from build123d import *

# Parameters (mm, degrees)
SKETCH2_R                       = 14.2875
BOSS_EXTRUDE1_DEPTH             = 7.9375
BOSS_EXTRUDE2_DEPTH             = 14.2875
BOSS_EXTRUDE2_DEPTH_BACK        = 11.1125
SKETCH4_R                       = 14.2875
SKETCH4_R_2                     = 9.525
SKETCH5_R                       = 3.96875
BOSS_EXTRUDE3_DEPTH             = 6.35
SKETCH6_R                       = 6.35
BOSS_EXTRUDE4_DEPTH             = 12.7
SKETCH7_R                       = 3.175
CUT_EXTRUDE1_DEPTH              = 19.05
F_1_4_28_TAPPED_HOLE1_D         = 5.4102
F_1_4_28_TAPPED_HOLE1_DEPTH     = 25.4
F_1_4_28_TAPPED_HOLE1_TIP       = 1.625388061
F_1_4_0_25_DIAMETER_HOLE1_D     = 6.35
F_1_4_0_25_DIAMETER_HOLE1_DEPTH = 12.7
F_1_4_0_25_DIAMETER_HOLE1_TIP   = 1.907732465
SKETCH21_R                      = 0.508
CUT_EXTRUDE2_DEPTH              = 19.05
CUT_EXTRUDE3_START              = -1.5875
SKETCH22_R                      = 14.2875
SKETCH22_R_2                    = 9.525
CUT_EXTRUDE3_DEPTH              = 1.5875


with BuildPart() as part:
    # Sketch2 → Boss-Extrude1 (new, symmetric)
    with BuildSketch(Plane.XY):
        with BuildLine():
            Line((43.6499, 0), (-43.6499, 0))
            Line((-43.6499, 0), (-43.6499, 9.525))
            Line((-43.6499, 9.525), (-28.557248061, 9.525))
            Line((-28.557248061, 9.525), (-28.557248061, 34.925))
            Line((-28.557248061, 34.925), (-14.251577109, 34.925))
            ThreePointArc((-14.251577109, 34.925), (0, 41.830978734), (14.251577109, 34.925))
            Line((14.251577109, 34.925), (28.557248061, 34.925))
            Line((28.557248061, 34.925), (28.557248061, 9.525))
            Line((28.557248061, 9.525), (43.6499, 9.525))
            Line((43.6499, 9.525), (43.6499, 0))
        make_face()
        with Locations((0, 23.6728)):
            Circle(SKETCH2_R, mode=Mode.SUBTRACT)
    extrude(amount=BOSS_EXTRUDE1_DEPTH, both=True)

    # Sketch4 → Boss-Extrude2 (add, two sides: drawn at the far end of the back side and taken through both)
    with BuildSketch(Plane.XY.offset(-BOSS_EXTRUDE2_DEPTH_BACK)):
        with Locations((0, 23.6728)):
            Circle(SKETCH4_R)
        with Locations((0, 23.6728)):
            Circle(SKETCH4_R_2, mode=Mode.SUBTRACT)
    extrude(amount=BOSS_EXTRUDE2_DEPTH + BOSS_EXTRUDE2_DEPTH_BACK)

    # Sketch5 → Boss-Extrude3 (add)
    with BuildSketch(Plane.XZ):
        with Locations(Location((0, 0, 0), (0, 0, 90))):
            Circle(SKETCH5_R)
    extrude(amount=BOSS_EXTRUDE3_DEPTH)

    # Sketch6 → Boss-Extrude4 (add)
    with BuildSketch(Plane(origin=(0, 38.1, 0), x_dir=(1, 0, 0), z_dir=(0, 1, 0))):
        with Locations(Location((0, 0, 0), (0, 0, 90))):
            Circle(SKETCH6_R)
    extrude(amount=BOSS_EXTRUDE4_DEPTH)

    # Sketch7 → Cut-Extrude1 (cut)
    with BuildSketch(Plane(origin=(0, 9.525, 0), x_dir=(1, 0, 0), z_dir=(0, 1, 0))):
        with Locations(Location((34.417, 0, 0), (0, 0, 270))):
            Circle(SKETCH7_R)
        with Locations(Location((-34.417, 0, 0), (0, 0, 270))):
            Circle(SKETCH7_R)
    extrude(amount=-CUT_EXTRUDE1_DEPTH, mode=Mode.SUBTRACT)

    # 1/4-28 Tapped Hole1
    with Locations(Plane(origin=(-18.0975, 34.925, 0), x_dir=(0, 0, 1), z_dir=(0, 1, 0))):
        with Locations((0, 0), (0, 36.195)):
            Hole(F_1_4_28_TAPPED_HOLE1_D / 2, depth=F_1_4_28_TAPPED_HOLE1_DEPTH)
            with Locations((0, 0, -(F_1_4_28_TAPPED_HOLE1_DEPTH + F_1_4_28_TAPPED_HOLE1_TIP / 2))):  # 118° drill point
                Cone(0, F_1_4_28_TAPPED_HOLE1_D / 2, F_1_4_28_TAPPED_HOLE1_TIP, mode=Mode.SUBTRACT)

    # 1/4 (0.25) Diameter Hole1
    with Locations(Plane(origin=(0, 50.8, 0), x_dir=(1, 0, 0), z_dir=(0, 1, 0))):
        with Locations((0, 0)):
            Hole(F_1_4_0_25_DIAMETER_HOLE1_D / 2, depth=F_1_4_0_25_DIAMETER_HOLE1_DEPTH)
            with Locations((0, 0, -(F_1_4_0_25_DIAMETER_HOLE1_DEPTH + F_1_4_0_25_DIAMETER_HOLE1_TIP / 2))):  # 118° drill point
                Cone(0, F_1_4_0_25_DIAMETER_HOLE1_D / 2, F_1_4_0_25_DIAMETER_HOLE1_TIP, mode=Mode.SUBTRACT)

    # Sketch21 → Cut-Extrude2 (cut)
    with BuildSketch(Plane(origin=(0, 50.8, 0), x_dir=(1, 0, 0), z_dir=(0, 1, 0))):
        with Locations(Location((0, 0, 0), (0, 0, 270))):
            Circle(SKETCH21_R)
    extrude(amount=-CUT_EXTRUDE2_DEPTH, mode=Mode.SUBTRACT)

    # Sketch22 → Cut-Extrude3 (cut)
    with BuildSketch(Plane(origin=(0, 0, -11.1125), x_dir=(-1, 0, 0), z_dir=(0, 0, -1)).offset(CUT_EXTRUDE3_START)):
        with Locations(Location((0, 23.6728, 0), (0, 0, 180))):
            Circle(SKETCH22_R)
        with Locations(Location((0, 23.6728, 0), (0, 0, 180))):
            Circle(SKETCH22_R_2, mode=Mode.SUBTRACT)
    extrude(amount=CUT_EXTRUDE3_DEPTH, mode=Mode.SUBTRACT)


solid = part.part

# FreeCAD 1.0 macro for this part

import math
import FreeCAD as App
import Part
import Sketcher
Q = App.Units.Quantity

doc = App.newDocument("Part")
body = doc.addObject("PartDesign::Body", "Body")

sketch1 = body.newObject("Sketcher::SketchObject", "Sketch")
sketch1.AttachmentSupport = (doc.getObject("XY_Plane"), [""])
sketch1.MapMode = "FlatFace"
sketch1.addGeometry([
    Part.LineSegment(App.Vector(-44, 0, 0), App.Vector(44, 0, 0)),
    Part.LineSegment(App.Vector(44, 0, 0), App.Vector(44, 10, 0)),
    Part.LineSegment(App.Vector(44, 10, 0), App.Vector(29, 10, 0)),
    Part.LineSegment(App.Vector(29, 10, 0), App.Vector(29, 35, 0)),
    Part.LineSegment(App.Vector(29, 35, 0), App.Vector(14, 35, 0)),
    Part.ArcOfCircle(Part.Circle(App.Vector(0, 24, 0), App.Vector(0, 0, 1), 18), math.radians(38), math.radians(142)),
    Part.LineSegment(App.Vector(-14, 35, 0), App.Vector(-29, 35, 0)),
    Part.LineSegment(App.Vector(-29, 35, 0), App.Vector(-29, 10, 0)),
    Part.LineSegment(App.Vector(-29, 10, 0), App.Vector(-44, 10, 0)),
    Part.LineSegment(App.Vector(-44, 10, 0), App.Vector(-44, 0, 0)),
    Part.Circle(App.Vector(0, 24, 0), App.Vector(0, 0, 1), 14),
], False)
sketch1.addConstraint([
    Sketcher.Constraint("Coincident", 0, 2, 1, 1),
    Sketcher.Constraint("Coincident", 1, 2, 2, 1),
    Sketcher.Constraint("Coincident", 2, 2, 3, 1),
    Sketcher.Constraint("Coincident", 3, 2, 4, 1),
    Sketcher.Constraint("Coincident", 4, 2, 5, 1),
    Sketcher.Constraint("Coincident", 5, 2, 6, 1),
    Sketcher.Constraint("Coincident", 6, 2, 7, 1),
    Sketcher.Constraint("Coincident", 7, 2, 8, 1),
    Sketcher.Constraint("Coincident", 8, 2, 9, 1),
    Sketcher.Constraint("Coincident", 9, 2, 0, 1),
    Sketcher.Constraint("Horizontal", 0),
    Sketcher.Constraint("Vertical", 1),
    Sketcher.Constraint("Horizontal", 2),
    Sketcher.Constraint("Vertical", 3),
    Sketcher.Constraint("Horizontal", 4),
    Sketcher.Constraint("Horizontal", 6),
    Sketcher.Constraint("Vertical", 7),
    Sketcher.Constraint("Horizontal", 8),
    Sketcher.Constraint("Vertical", 9),
    Sketcher.Constraint("Coincident", 10, 3, 5, 3),
    Sketcher.Constraint("Symmetric", 0, 2, 9, 2, -1, 1),
    Sketcher.Constraint("Symmetric", 4, 2, 5, 2, -2),
    Sketcher.Constraint("Symmetric", 2, 2, 7, 2, -2),
    Sketcher.Constraint("DistanceY", 3, 1, 3, 2, Q("1 in")),
    Sketcher.Constraint("Diameter", 10, Q("1.125 in")),
    Sketcher.Constraint("DistanceX", 0, 1, 0, 2, Q("3.437 in")),
    Sketcher.Constraint("DistanceY", 1, 1, 1, 2, Q("0.375 in")),
    Sketcher.Constraint("DistanceY", -1, 1, 5, 3, Q("0.932 in")),
    Sketcher.Constraint("Radius", 5, 18.158179),
    Sketcher.Constraint("DistanceX", 2, 2, 2, 1, 15.092652),
])
pad1 = body.newObject("PartDesign::Pad", "Pad")
pad1.Profile = sketch1
pad1.Length = Q("0.625 in")
pad1.Midplane = True

sketch2 = body.newObject("Sketcher::SketchObject", "Sketch001")
sketch2.AttachmentSupport = (doc.getObject("XY_Plane"), [""])
sketch2.MapMode = "FlatFace"
sketch2.addGeometry([
    Part.Circle(App.Vector(0, 24, 0), App.Vector(0, 0, 1), 14),
    Part.Circle(App.Vector(0, 24, 0), App.Vector(0, 0, 1), 10),
], False)
sketch2.addConstraint([
    Sketcher.Constraint("Coincident", 1, 3, 0, 3),
    Sketcher.Constraint("PointOnObject", 0, 3, -2),
    Sketcher.Constraint("Diameter", 1, Q("0.75 in")),
    Sketcher.Constraint("Diameter", 0, Q("1.125 in")),
    Sketcher.Constraint("DistanceY", -1, 1, 0, 3, Q("0.932 in")),
])
pad2 = body.newObject("PartDesign::Pad", "Pad001")
pad2.Profile = sketch2
pad2.Type = "TwoLengths"
pad2.Length = Q("0.5625 in")
pad2.Length2 = Q("0.4375 in")

sketch3 = body.newObject("Sketcher::SketchObject", "Sketch002")
sketch3.AttachmentSupport = (doc.getObject("XZ_Plane"), [""])
sketch3.MapMode = "FlatFace"
sketch3.addGeometry(Part.Circle(App.Vector(0, 0, 0), App.Vector(0, 0, 1), 4), False)
sketch3.addConstraint([
    Sketcher.Constraint("Coincident", 0, 3, -1, 1),
    Sketcher.Constraint("Diameter", 0, Q("0.3125 in")),
])
pad3 = body.newObject("PartDesign::Pad", "Pad002")
pad3.Profile = sketch3
pad3.Length = Q("0.25 in")

sketch4 = body.newObject("Sketcher::SketchObject", "Sketch003")
sketch4.AttachmentSupport = (doc.getObject("XZ_Plane"), [""])
sketch4.MapMode = "FlatFace"
sketch4.AttachmentOffset = App.Placement(App.Vector(0, 0, -1.5 * 25.4), App.Rotation())
sketch4.addGeometry(Part.Circle(App.Vector(0, 0, 0), App.Vector(0, 0, 1), 6), False)
sketch4.addConstraint([
    Sketcher.Constraint("Coincident", 0, 3, -1, 1),
    Sketcher.Constraint("Diameter", 0, Q("0.5 in")),
])
pad4 = body.newObject("PartDesign::Pad", "Pad003")
pad4.Profile = sketch4
pad4.Length = Q("0.5 in")
pad4.Reversed = True

sketch5 = body.newObject("Sketcher::SketchObject", "Sketch004")
sketch5.AttachmentSupport = (doc.getObject("XZ_Plane"), [""])
sketch5.MapMode = "FlatFace"
sketch5.AttachmentOffset = App.Placement(App.Vector(0, 0, -0.375 * 25.4), App.Rotation())
sketch5.addGeometry([
    Part.Circle(App.Vector(34.4, 0, 0), App.Vector(0, 0, 1), 3.2),
    Part.Circle(App.Vector(-34.4, 0, 0), App.Vector(0, 0, 1), 3.2),
], False)
sketch5.addConstraint([
    Sketcher.Constraint("Equal", 0, 1),
    Sketcher.Constraint("Symmetric", 0, 3, 1, 3, -1, 1),
    Sketcher.Constraint("PointOnObject", 0, 3, -1),
    Sketcher.Constraint("Diameter", 0, Q("0.25 in")),
    Sketcher.Constraint("DistanceX", 1, 3, 0, 3, Q("2.71 in")),
])
pocket1 = body.newObject("PartDesign::Pocket", "Pocket")
pocket1.Profile = sketch5
pocket1.Length = Q("0.75 in")
pocket1.Reversed = True

sketch6 = body.newObject("Sketcher::SketchObject", "Sketch005")
sketch6.AttachmentSupport = (doc.getObject("XZ_Plane"), [""])
sketch6.MapMode = "FlatFace"
sketch6.AttachmentOffset = App.Placement(App.Vector(0, 0, -1.375 * 25.4), App.Rotation())
sketch6.addGeometry([
    Part.Circle(App.Vector(-18.1, 0, 0), App.Vector(0, 0, 1), 2.7),
    Part.Circle(App.Vector(18.1, 0, 0), App.Vector(0, 0, 1), 2.7),
], False)
sketch6.addConstraint([
    Sketcher.Constraint("Equal", 0, 1),
    Sketcher.Constraint("Symmetric", 0, 3, 1, 3, -1, 1),
    Sketcher.Constraint("PointOnObject", 0, 3, -1),
    Sketcher.Constraint("Diameter", 0, Q("0.213 in")),
    Sketcher.Constraint("DistanceX", 0, 3, 1, 3, Q("1.425 in")),
])
doc.recompute()
hole = body.newObject("PartDesign::Hole", "Hole")
hole.Profile = sketch6
hole.ThreadType = "None"
hole.Diameter = Q("0.213 in")
hole.DepthType = "Dimension"
hole.Depth = Q("1 in")
hole.DrillPoint = "Angled"
hole.DrillPointAngle = 118
hole.Reversed = True

sketch7 = body.newObject("Sketcher::SketchObject", "Sketch006")
sketch7.AttachmentSupport = (doc.getObject("XZ_Plane"), [""])
sketch7.MapMode = "FlatFace"
sketch7.AttachmentOffset = App.Placement(App.Vector(0, 0, -2 * 25.4), App.Rotation())
sketch7.addGeometry(Part.Circle(App.Vector(0, 0, 0), App.Vector(0, 0, 1), 3.2), False)
sketch7.addConstraint([
    Sketcher.Constraint("Coincident", 0, 3, -1, 1),
    Sketcher.Constraint("Diameter", 0, Q("0.25 in")),
])
doc.recompute()
hole2 = body.newObject("PartDesign::Hole", "Hole001")
hole2.Profile = sketch7
hole2.ThreadType = "None"
hole2.Diameter = Q("0.25 in")
hole2.DepthType = "Dimension"
hole2.Depth = Q("0.5 in")
hole2.DrillPoint = "Angled"
hole2.DrillPointAngle = 118
hole2.Reversed = True

sketch8 = body.newObject("Sketcher::SketchObject", "Sketch007")
sketch8.AttachmentSupport = (doc.getObject("XZ_Plane"), [""])
sketch8.MapMode = "FlatFace"
sketch8.AttachmentOffset = App.Placement(App.Vector(0, 0, -2 * 25.4), App.Rotation())
sketch8.addGeometry(Part.Circle(App.Vector(0, 0, 0), App.Vector(0, 0, 1), 0.5), False)
sketch8.addConstraint([
    Sketcher.Constraint("Coincident", 0, 3, -1, 1),
    Sketcher.Constraint("Diameter", 0, Q("0.04 in")),
])
pocket2 = body.newObject("PartDesign::Pocket", "Pocket001")
pocket2.Profile = sketch8
pocket2.Length = Q("0.75 in")
pocket2.Reversed = True

sketch9 = body.newObject("Sketcher::SketchObject", "Sketch008")
sketch9.AttachmentSupport = (doc.getObject("XY_Plane"), [""])
sketch9.MapMode = "FlatFace"
sketch9.AttachmentOffset = App.Placement(App.Vector(0, 0, -0.375 * 25.4), App.Rotation())
sketch9.addGeometry([
    Part.Circle(App.Vector(0, 24, 0), App.Vector(0, 0, 1), 14),
    Part.Circle(App.Vector(0, 24, 0), App.Vector(0, 0, 1), 10),
], False)
sketch9.addConstraint([
    Sketcher.Constraint("Coincident", 1, 3, 0, 3),
    Sketcher.Constraint("PointOnObject", 0, 3, -2),
    Sketcher.Constraint("Diameter", 1, Q("0.75 in")),
    Sketcher.Constraint("Diameter", 0, Q("1.125 in")),
    Sketcher.Constraint("DistanceY", -1, 1, 0, 3, Q("0.932 in")),
])
pocket3 = body.newObject("PartDesign::Pocket", "Pocket002")
pocket3.Profile = sketch9
pocket3.Length = Q("0.0625 in")

doc.recompute()
